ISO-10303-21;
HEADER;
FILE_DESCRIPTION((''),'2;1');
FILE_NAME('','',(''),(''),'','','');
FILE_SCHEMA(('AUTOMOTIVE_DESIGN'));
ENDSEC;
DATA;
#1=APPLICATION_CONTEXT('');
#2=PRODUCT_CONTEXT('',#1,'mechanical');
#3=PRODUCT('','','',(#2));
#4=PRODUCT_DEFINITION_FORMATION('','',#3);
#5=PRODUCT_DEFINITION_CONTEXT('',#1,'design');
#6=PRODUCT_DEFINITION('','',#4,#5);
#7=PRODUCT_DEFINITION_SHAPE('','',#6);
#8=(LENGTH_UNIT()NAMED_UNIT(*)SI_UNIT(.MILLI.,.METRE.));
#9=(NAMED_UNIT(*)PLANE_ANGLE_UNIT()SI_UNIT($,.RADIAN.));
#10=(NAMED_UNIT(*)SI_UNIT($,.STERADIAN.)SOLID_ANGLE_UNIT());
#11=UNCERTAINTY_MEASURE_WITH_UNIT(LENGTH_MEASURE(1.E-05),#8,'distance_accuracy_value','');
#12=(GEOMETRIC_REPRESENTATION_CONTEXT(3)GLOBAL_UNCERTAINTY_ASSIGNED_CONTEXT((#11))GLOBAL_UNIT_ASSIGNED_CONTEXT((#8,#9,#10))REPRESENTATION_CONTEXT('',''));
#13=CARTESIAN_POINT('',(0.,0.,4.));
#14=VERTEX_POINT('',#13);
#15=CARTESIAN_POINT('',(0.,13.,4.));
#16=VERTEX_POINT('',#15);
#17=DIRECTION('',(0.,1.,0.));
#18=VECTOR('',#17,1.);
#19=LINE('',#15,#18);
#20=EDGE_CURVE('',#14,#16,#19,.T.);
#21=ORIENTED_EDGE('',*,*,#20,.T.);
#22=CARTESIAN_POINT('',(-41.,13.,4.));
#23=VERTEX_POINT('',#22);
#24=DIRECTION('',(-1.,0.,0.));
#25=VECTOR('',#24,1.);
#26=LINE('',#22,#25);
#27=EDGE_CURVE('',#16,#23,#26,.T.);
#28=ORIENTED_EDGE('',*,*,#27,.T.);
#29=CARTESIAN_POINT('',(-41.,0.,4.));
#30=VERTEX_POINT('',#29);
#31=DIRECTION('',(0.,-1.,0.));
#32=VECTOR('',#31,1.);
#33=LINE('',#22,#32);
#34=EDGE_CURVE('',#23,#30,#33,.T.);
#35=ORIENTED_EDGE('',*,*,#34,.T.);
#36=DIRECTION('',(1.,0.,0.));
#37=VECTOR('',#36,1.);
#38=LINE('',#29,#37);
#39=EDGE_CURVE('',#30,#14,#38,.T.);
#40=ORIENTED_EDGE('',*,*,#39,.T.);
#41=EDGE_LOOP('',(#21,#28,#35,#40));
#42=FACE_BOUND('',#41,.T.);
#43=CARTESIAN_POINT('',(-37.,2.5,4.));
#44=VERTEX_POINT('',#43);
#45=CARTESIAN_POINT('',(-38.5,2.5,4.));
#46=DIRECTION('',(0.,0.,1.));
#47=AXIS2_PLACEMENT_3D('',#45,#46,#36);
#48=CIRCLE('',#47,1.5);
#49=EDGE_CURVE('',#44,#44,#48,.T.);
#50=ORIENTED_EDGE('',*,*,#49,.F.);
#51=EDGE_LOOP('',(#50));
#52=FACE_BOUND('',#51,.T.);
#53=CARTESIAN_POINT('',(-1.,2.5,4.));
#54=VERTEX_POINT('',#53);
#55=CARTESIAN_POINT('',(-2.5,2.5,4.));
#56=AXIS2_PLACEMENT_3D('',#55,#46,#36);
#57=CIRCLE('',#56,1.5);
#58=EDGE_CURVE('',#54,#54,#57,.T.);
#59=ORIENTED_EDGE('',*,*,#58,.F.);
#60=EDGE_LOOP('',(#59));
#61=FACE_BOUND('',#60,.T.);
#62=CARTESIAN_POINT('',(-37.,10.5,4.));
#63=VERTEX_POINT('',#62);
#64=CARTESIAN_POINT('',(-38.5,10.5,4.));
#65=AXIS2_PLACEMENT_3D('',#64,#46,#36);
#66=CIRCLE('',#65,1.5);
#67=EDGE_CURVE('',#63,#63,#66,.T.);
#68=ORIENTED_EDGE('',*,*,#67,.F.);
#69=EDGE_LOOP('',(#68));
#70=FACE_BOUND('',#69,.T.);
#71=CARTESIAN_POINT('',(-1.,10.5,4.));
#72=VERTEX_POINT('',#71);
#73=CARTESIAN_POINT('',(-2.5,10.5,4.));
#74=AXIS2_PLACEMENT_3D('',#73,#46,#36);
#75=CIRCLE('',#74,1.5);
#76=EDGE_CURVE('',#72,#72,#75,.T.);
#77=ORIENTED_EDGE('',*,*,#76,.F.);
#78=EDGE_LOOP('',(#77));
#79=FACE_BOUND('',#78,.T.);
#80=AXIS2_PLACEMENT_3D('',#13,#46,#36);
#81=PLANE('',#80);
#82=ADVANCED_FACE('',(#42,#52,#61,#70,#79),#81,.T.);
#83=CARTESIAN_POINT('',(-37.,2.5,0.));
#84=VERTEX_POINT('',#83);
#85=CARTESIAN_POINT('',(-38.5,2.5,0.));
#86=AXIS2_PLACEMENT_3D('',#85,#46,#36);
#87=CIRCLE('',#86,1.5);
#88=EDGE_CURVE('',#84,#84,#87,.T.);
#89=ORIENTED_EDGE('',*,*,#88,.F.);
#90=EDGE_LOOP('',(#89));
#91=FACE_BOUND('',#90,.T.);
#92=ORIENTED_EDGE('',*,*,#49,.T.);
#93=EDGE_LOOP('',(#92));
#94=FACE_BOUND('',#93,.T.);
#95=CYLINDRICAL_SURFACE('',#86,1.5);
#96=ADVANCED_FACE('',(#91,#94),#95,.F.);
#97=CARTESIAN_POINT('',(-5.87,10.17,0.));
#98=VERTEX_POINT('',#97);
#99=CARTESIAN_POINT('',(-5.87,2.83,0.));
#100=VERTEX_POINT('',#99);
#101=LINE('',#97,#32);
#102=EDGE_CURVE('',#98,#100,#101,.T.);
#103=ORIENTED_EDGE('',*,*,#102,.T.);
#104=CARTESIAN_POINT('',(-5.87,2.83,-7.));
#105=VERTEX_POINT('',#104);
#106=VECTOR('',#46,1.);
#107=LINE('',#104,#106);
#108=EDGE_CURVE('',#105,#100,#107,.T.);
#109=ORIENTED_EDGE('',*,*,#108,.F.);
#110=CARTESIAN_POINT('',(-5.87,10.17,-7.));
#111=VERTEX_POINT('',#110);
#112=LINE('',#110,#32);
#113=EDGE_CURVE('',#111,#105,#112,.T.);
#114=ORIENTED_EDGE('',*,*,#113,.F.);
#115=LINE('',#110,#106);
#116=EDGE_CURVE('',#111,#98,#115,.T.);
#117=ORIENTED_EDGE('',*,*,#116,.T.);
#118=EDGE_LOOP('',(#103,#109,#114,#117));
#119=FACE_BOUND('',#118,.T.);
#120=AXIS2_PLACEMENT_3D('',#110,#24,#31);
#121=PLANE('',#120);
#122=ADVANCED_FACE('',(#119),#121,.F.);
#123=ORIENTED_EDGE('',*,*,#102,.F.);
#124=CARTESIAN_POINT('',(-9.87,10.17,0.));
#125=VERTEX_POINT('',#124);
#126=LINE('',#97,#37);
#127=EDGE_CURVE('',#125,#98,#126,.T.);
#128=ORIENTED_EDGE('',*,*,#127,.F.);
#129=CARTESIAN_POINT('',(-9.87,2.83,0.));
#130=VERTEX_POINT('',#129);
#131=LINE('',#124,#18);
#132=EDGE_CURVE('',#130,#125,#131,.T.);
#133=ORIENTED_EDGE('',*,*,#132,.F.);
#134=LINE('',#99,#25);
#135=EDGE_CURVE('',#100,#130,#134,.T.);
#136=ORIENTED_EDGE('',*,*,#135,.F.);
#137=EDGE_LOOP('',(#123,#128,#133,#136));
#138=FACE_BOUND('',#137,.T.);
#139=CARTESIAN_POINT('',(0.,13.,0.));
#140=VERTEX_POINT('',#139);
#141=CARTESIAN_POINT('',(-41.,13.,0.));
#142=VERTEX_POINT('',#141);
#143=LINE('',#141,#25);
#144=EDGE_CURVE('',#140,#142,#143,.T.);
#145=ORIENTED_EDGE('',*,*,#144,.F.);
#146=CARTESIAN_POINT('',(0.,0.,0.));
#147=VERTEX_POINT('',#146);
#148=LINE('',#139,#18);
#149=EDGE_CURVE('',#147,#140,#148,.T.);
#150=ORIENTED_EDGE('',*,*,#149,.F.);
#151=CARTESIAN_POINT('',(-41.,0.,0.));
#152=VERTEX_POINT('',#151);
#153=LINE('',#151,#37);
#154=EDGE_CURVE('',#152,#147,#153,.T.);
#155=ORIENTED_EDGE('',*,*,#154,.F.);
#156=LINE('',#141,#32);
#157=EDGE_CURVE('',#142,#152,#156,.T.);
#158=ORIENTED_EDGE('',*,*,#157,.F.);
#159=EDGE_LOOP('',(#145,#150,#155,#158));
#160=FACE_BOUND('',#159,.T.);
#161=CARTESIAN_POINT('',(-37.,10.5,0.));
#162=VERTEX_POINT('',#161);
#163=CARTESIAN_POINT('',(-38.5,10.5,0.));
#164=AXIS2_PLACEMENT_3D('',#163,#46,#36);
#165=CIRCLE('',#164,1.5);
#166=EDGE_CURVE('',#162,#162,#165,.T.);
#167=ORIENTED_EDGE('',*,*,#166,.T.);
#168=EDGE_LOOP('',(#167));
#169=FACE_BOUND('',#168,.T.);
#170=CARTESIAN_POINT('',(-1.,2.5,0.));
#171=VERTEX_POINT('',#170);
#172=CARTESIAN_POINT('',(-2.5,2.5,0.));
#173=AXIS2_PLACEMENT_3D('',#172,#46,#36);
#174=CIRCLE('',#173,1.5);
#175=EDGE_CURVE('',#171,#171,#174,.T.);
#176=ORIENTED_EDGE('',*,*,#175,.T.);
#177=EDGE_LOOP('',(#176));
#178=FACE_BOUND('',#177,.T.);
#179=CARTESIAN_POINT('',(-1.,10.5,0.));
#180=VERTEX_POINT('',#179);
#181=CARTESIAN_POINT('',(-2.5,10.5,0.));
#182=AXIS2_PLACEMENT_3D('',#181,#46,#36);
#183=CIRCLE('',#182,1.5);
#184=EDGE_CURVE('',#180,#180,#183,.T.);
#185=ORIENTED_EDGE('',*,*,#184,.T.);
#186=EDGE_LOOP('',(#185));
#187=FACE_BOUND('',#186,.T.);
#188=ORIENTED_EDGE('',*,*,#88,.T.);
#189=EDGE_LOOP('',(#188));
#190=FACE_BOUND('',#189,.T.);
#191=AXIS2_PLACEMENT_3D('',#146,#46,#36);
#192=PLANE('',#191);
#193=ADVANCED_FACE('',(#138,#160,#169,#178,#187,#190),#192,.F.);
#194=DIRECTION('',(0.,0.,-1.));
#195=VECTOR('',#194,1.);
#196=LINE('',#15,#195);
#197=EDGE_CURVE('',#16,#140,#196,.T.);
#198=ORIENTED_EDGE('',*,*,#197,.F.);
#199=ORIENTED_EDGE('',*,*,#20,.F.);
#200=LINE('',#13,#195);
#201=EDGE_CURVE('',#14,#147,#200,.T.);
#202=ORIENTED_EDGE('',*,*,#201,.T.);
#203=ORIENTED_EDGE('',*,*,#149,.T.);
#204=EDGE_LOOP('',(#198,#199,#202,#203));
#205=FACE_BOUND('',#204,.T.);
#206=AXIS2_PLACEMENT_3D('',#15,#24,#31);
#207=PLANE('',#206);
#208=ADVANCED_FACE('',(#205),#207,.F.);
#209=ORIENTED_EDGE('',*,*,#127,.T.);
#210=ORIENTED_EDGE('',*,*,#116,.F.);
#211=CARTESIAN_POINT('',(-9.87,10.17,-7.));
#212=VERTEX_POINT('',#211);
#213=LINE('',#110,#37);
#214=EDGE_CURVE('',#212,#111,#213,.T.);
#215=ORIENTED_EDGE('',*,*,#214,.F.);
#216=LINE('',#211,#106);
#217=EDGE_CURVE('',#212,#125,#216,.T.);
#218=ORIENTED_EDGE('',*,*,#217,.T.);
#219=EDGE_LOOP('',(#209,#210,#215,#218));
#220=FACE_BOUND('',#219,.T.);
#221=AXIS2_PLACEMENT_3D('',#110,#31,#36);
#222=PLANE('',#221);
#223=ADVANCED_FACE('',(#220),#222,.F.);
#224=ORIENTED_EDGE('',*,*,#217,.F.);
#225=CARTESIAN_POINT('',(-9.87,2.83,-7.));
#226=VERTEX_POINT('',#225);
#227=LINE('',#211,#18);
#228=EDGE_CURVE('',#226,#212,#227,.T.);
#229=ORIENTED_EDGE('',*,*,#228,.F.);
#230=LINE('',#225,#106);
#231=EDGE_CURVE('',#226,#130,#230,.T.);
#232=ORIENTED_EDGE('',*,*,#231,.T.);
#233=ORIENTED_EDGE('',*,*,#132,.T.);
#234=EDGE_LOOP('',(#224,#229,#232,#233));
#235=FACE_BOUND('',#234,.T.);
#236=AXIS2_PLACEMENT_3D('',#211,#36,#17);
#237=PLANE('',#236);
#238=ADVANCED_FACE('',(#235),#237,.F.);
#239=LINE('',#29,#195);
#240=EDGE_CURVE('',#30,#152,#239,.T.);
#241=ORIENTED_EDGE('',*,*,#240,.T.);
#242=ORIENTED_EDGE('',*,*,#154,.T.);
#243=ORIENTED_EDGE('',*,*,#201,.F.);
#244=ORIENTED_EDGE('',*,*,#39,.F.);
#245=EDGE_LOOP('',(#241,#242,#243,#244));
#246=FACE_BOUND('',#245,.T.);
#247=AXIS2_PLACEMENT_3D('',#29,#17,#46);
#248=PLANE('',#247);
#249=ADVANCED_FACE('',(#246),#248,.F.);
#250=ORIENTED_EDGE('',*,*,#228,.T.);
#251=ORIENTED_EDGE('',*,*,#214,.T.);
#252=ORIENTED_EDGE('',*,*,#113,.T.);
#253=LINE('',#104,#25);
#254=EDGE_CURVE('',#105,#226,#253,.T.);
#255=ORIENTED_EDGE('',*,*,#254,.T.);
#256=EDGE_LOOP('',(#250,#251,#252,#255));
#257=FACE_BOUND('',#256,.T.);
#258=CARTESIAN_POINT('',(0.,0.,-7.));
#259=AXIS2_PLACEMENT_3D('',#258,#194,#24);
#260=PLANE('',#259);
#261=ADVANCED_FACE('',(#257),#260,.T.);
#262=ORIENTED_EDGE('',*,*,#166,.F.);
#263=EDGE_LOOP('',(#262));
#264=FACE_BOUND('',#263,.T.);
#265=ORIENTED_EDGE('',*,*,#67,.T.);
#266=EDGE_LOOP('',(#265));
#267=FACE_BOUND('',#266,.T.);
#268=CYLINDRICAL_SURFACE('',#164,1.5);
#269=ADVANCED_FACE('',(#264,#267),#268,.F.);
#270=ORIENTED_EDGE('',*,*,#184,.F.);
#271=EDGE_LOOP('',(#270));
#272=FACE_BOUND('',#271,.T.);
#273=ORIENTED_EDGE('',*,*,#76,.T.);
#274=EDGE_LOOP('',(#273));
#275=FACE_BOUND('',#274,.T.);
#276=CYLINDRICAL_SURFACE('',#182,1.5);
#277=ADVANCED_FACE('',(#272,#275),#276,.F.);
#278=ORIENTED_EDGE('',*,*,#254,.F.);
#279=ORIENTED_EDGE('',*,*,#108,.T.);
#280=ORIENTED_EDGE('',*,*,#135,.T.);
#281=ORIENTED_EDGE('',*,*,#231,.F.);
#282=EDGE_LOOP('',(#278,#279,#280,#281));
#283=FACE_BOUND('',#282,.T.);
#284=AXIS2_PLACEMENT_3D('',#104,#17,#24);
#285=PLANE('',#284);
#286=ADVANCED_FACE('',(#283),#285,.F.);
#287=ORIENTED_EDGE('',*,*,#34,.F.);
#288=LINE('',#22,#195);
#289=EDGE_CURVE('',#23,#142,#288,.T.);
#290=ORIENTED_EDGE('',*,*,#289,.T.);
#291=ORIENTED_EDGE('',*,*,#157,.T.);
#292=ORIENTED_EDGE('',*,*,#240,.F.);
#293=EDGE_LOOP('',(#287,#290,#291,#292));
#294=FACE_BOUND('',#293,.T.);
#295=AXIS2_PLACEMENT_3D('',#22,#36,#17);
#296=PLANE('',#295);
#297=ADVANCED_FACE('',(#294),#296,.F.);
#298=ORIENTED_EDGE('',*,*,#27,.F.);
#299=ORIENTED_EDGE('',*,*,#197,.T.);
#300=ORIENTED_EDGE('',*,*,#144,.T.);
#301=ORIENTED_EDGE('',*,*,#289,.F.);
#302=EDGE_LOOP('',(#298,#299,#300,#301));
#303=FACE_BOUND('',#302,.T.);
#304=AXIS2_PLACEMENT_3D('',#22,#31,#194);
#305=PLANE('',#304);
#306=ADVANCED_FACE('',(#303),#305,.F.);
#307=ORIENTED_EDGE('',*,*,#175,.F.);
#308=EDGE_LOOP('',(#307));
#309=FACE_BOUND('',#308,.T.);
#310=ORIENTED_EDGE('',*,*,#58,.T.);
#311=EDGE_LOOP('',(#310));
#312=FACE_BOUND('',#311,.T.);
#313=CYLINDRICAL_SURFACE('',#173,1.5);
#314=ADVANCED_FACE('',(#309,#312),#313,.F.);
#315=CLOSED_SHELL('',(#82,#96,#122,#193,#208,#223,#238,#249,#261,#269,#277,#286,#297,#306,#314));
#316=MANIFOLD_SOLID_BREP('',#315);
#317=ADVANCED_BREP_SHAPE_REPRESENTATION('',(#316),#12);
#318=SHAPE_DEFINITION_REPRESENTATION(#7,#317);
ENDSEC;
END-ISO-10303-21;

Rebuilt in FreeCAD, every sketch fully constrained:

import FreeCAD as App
import Part
import Sketcher

V = App.Vector

doc = App.newDocument("Part")
body = doc.addObject("PartDesign::Body", "Body")

sketch1 = body.newObject("Sketcher::SketchObject", "Sketch")
sketch1.AttachmentSupport = (doc.getObject("XY_Plane"), [""])
sketch1.MapMode = "FlatFace"
sketch1.addGeometry(Part.LineSegment(V(-41, 13, 0), V(-41, 0, 0)), False)
sketch1.addGeometry(Part.LineSegment(V(-41, 0, 0), V(0, 0, 0)), False)
sketch1.addGeometry(Part.LineSegment(V(0, 0, 0), V(0, 13, 0)), False)
sketch1.addGeometry(Part.LineSegment(V(0, 13, 0), V(-41, 13, 0)), False)
sketch1.addConstraint(Sketcher.Constraint("Coincident", 0, 2, 1, 1))
sketch1.addConstraint(Sketcher.Constraint("Coincident", 1, 2, 2, 1))
sketch1.addConstraint(Sketcher.Constraint("Coincident", 2, 2, 3, 1))
sketch1.addConstraint(Sketcher.Constraint("Coincident", 3, 2, 0, 1))
sketch1.addConstraint(Sketcher.Constraint("Vertical", 0))
sketch1.addConstraint(Sketcher.Constraint("Horizontal", 1))
sketch1.addConstraint(Sketcher.Constraint("Vertical", 2))
sketch1.addConstraint(Sketcher.Constraint("Horizontal", 3))
sketch1.addConstraint(Sketcher.Constraint("Coincident", 1, 2, -1, 1))
sketch1.addConstraint(Sketcher.Constraint("DistanceX", 1, 1, 1, 2, 41.0))
sketch1.addConstraint(Sketcher.Constraint("DistanceY", 0, 2, 0, 1, 13.0))
pad1 = body.newObject("PartDesign::Pad", "Pad")
pad1.Profile = sketch1
pad1.Length = 4

sketch2 = body.newObject("Sketcher::SketchObject", "Sketch001")
sketch2.AttachmentSupport = (doc.getObject("XY_Plane"), [""])
sketch2.MapMode = "FlatFace"
sketch2.AttachmentOffset = App.Placement(V(0, 0, 4), App.Rotation())
sketch2.addGeometry(Part.Circle(V(-2.5, 10.5, 0), V(0, 0, 1), 1.5), False)
sketch2.addGeometry(Part.Circle(V(-2.5, 2.5, 0), V(0, 0, 1), 1.5), False)
sketch2.addGeometry(Part.Circle(V(-38.5, 10.5, 0), V(0, 0, 1), 1.5), False)
sketch2.addGeometry(Part.Circle(V(-38.5, 2.5, 0), V(0, 0, 1), 1.5), False)
sketch2.addConstraint(Sketcher.Constraint("Equal", 0, 1))
sketch2.addConstraint(Sketcher.Constraint("Equal", 1, 2))
sketch2.addConstraint(Sketcher.Constraint("Equal", 2, 3))
sketch2.addConstraint(Sketcher.Constraint("Horizontal", 0, 3, 2, 3))
sketch2.addConstraint(Sketcher.Constraint("Horizontal", 1, 3, 3, 3))
sketch2.addConstraint(Sketcher.Constraint("Vertical", 0, 3, 1, 3))
sketch2.addConstraint(Sketcher.Constraint("Vertical", 2, 3, 3, 3))
sketch2.addConstraint(Sketcher.Constraint("Diameter", 0, 3.0))
sketch2.addConstraint(Sketcher.Constraint("DistanceY", 1, 3, 0, 3, 8.0))
sketch2.addConstraint(Sketcher.Constraint("DistanceX", 2, 3, 0, 3, 36.0))
sketch2.addConstraint(Sketcher.Constraint("DistanceX", 0, 3, -1, 1, 2.5))
sketch2.addConstraint(Sketcher.Constraint("DistanceY", -1, 1, 0, 3, 10.5))
pocket1 = body.newObject("PartDesign::Pocket", "Pocket")
pocket1.Profile = sketch2
pocket1.Type = "ThroughAll"

sketch3 = body.newObject("Sketcher::SketchObject", "Sketch002")
sketch3.AttachmentSupport = (doc.getObject("XY_Plane"), [""])
sketch3.MapMode = "FlatFace"
sketch3.addGeometry(Part.LineSegment(V(-5.9, 10.2, 0), V(-5.9, 2.8, 0)), False)
sketch3.addGeometry(Part.LineSegment(V(-5.9, 2.8, 0), V(-9.9, 2.8, 0)), False)
sketch3.addGeometry(Part.LineSegment(V(-9.9, 2.8, 0), V(-9.9, 10.2, 0)), False)
sketch3.addGeometry(Part.LineSegment(V(-9.9, 10.2, 0), V(-5.9, 10.2, 0)), False)
sketch3.addConstraint(Sketcher.Constraint("Coincident", 0, 2, 1, 1))
sketch3.addConstraint(Sketcher.Constraint("Coincident", 1, 2, 2, 1))
sketch3.addConstraint(Sketcher.Constraint("Coincident", 2, 2, 3, 1))
sketch3.addConstraint(Sketcher.Constraint("Coincident", 3, 2, 0, 1))
sketch3.addConstraint(Sketcher.Constraint("Vertical", 0))
sketch3.addConstraint(Sketcher.Constraint("Horizontal", 1))
sketch3.addConstraint(Sketcher.Constraint("Vertical", 2))
sketch3.addConstraint(Sketcher.Constraint("Horizontal", 3))
sketch3.addConstraint(Sketcher.Constraint("DistanceX", 1, 2, 1, 1, 4.0))
sketch3.addConstraint(Sketcher.Constraint("DistanceY", 0, 2, 0, 1, 7.34))
sketch3.addConstraint(Sketcher.Constraint("DistanceX", 0, 2, -1, 1, 5.87))
sketch3.addConstraint(Sketcher.Constraint("DistanceY", -1, 1, 0, 2, 2.83))
pad2 = body.newObject("PartDesign::Pad", "Pad001")
pad2.Profile = sketch3
pad2.Length = 7
pad2.Reversed = True

doc.recompute()
